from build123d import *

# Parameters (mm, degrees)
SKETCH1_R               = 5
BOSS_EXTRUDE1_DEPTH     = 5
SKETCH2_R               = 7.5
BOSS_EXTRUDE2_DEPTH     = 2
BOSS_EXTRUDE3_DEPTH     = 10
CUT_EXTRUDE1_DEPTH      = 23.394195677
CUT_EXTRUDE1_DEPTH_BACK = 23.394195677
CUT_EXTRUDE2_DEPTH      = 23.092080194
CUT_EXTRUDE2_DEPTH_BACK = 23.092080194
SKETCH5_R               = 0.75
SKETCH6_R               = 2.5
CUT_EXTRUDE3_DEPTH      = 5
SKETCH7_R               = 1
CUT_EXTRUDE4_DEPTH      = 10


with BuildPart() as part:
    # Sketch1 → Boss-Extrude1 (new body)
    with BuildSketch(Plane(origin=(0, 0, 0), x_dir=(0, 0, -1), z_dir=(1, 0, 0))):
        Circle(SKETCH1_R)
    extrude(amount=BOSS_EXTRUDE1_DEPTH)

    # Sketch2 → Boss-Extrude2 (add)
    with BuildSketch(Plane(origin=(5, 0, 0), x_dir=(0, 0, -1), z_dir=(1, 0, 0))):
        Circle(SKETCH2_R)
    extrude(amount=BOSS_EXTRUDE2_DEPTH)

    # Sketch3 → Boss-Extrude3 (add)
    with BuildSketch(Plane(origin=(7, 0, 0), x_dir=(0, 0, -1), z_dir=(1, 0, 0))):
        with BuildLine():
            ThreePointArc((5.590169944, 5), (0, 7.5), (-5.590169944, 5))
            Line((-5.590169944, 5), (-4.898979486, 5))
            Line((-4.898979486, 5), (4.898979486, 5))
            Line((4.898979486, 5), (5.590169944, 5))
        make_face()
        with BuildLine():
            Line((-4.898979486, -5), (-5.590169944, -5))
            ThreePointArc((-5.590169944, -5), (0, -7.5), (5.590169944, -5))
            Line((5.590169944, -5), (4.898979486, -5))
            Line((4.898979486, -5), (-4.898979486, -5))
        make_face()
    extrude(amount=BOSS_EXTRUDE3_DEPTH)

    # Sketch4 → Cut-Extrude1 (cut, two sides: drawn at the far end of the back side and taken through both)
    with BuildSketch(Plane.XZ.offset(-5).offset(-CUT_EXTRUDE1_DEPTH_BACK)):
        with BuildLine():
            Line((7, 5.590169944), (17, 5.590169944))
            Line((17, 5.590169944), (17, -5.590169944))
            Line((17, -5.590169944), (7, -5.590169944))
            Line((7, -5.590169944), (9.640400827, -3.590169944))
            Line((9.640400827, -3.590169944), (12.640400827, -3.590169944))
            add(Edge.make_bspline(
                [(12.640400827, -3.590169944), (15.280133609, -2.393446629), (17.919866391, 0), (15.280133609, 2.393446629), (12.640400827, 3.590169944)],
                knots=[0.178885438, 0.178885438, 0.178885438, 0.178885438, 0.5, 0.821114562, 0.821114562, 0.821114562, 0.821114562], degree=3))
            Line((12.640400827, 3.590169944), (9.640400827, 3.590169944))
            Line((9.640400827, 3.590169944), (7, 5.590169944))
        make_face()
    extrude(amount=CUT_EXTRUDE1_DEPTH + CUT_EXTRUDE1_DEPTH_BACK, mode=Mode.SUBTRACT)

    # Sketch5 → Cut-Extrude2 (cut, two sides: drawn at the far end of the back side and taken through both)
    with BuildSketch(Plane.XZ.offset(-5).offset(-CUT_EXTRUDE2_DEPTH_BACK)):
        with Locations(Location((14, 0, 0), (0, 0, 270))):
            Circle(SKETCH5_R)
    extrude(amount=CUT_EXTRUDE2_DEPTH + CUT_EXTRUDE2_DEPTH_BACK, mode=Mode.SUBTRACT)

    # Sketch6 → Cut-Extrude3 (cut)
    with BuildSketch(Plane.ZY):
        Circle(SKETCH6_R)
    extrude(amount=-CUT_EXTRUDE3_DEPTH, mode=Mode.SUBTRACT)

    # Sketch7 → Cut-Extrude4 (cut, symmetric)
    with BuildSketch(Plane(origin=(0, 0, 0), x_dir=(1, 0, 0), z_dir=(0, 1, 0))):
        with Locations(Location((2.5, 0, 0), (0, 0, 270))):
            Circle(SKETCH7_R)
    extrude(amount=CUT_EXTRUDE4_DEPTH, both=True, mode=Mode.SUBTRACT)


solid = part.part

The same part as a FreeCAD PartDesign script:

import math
import FreeCAD as App
import Part
import Sketcher
Q = App.Units.Quantity

doc = App.newDocument("Part")
body = doc.addObject("PartDesign::Body", "Body")

# Sketch on YZ plane
sketch1 = body.newObject("Sketcher::SketchObject", "Sketch")
sketch1.AttachmentSupport = (doc.getObject("YZ_Plane"), [""])
sketch1.MapMode = "FlatFace"
sketch1.addGeometry(Part.Circle(App.Vector(0, 0, 0), App.Vector(0, 0, 1), 5), False)
sketch1.addConstraint([
    Sketcher.Constraint("Coincident", 0, 3, -1, 1),
    Sketcher.Constraint("Diameter", 0, Q("10 mm")),
])
pad1 = body.newObject("PartDesign::Pad", "Pad")
pad1.Profile = sketch1
pad1.Length = 5

# Sketch on YZ plane
sketch2 = body.newObject("Sketcher::SketchObject", "Sketch001")
sketch2.AttachmentSupport = (doc.getObject("YZ_Plane"), [""])
sketch2.MapMode = "FlatFace"
sketch2.AttachmentOffset = App.Placement(App.Vector(0, 0, 5), App.Rotation())
sketch2.addGeometry(Part.Circle(App.Vector(0, 0, 0), App.Vector(0, 0, 1), 7.5), False)
sketch2.addConstraint([
    Sketcher.Constraint("Coincident", 0, 3, -1, 1),
    Sketcher.Constraint("Diameter", 0, Q("15 mm")),
])
pad2 = body.newObject("PartDesign::Pad", "Pad001")
pad2.Profile = sketch2
pad2.Length = 2

# Sketch on YZ plane
sketch3 = body.newObject("Sketcher::SketchObject", "Sketch002")
sketch3.AttachmentSupport = (doc.getObject("YZ_Plane"), [""])
sketch3.MapMode = "FlatFace"
sketch3.AttachmentOffset = App.Placement(App.Vector(0, 0, 7), App.Rotation())
sketch3.addGeometry([
    Part.ArcOfCircle(Part.Circle(App.Vector(0, 0, 0), App.Vector(0, 0, 1), 7.5), math.radians(-48.189685), math.radians(48.189685)),
    Part.LineSegment(App.Vector(5, 5.59017, 0), App.Vector(5, -5.59017, 0)),
    Part.ArcOfCircle(Part.Circle(App.Vector(0, 0, 0), App.Vector(0, 0, 1), 7.5), math.radians(131.810315), math.radians(228.189685)),
    Part.LineSegment(App.Vector(-5, -5.59017, 0), App.Vector(-5, 5.59017, 0)),
], False)
sketch3.addConstraint([
    Sketcher.Constraint("Coincident", 0, 1, 1, 2),
    Sketcher.Constraint("Coincident", 1, 1, 0, 2),
    Sketcher.Constraint("Coincident", 2, 1, 3, 2),
    Sketcher.Constraint("Coincident", 3, 1, 2, 2),
    Sketcher.Constraint("Vertical", 1),
    Sketcher.Constraint("Vertical", 3),
    Sketcher.Constraint("Coincident", 0, 3, -1, 1),
    Sketcher.Constraint("Coincident", 2, 3, -1, 1),
    Sketcher.Constraint("Equal", 0, 2),
    Sketcher.Constraint("Horizontal", 1, 1, 2, 1),
    Sketcher.Constraint("Radius", 0, Q("7.5 mm")),
    Sketcher.Constraint("DistanceX", -1, 1, 0, 1, Q("5 mm")),
])
pad3 = body.newObject("PartDesign::Pad", "Pad002")
pad3.Profile = sketch3
pad3.Length = 10

# Sketch on XZ plane
sketch4 = body.newObject("Sketcher::SketchObject", "Sketch003")
sketch4.AttachmentSupport = (doc.getObject("XZ_Plane"), [""])
sketch4.MapMode = "FlatFace"
sketch4.AttachmentOffset = App.Placement(App.Vector(0, 0, -5), App.Rotation())
sketch4.addGeometry([
    Part.LineSegment(App.Vector(17, 5.59017, 0), App.Vector(7, 5.59017, 0)),  # 0
    Part.LineSegment(App.Vector(7, 5.59017, 0), App.Vector(9.640401, 3.59017, 0)),  # 1
    Part.LineSegment(App.Vector(9.640401, 3.59017, 0), App.Vector(12.640401, 3.59017, 0)),  # 2
    Part.BSplineCurve([App.Vector(12.640401, -3.59017, 0), App.Vector(15.280134, -2.393447, 0), App.Vector(17.919866, 0, 0), App.Vector(15.280134, 2.393447, 0), App.Vector(12.640401, 3.59017, 0)], [4, 1, 4], [0.178885438, 0.5, 0.821114562], False, 3, [1, 1, 1, 1, 1], False),  # 3
    Part.LineSegment(App.Vector(12.640401, -3.59017, 0), App.Vector(9.640401, -3.59017, 0)),  # 4
    Part.LineSegment(App.Vector(9.640401, -3.59017, 0), App.Vector(7, -5.59017, 0)),  # 5
    Part.LineSegment(App.Vector(7, -5.59017, 0), App.Vector(17, -5.59017, 0)),  # 6
    Part.LineSegment(App.Vector(17, -5.59017, 0), App.Vector(17, 5.59017, 0)),  # 7
], False)
sketch4.addConstraint([
    Sketcher.Constraint("Block", 3),
    Sketcher.Constraint("Coincident", 0, 2, 1, 1),
    Sketcher.Constraint("Coincident", 1, 2, 2, 1),
    Sketcher.Constraint("Coincident", 2, 2, 3, 2),
    Sketcher.Constraint("Coincident", 3, 1, 4, 1),
    Sketcher.Constraint("Coincident", 4, 2, 5, 1),
    Sketcher.Constraint("Coincident", 5, 2, 6, 1),
    Sketcher.Constraint("Coincident", 6, 2, 7, 1),
    Sketcher.Constraint("Coincident", 7, 2, 0, 1),
    Sketcher.Constraint("Horizontal", 0),
    Sketcher.Constraint("Horizontal", 2),
    Sketcher.Constraint("Horizontal", 4),
    Sketcher.Constraint("Horizontal", 6),
    Sketcher.Constraint("Vertical", 7),
    Sketcher.Constraint("Symmetric", 0, 2, 5, 2, -1),
    Sketcher.Constraint("Vertical", 1, 2, 4, 2),
    Sketcher.Constraint("DistanceX", 0, 2, 0, 1, Q("10 mm")),
    Sketcher.Constraint("DistanceX", 2, 1, 2, 2, Q("3 mm")),
    Sketcher.Constraint("DistanceX", -1, 1, 0, 2, Q("7 mm")),
    Sketcher.Constraint("DistanceY", 1, 2, 0, 2, Q("2 mm")),
])
pocket1 = body.newObject("PartDesign::Pocket", "Pocket")
pocket1.Profile = sketch4
pocket1.Type = "ThroughAll"
pocket1.Midplane = True

# Sketch on XZ plane
sketch5 = body.newObject("Sketcher::SketchObject", "Sketch004")
sketch5.AttachmentSupport = (doc.getObject("XZ_Plane"), [""])
sketch5.MapMode = "FlatFace"
sketch5.AttachmentOffset = App.Placement(App.Vector(0, 0, -5), App.Rotation())
sketch5.addGeometry(Part.Circle(App.Vector(14, 0, 0), App.Vector(0, 0, 1), 0.75), False)
sketch5.addConstraint([
    Sketcher.Constraint("PointOnObject", 0, 3, -1),
    Sketcher.Constraint("Diameter", 0, Q("1.5 mm")),
    Sketcher.Constraint("DistanceX", -1, 1, 0, 3, Q("14 mm")),
])
pocket2 = body.newObject("PartDesign::Pocket", "Pocket001")
pocket2.Profile = sketch5
pocket2.Type = "ThroughAll"
pocket2.Midplane = True

# Sketch on YZ plane
sketch6 = body.newObject("Sketcher::SketchObject", "Sketch005")
sketch6.AttachmentSupport = (doc.getObject("YZ_Plane"), [""])
sketch6.MapMode = "FlatFace"
sketch6.addGeometry(Part.Circle(App.Vector(0, 0, 0), App.Vector(0, 0, 1), 2.5), False)
sketch6.addConstraint([
    Sketcher.Constraint("Coincident", 0, 3, -1, 1),
    Sketcher.Constraint("Diameter", 0, Q("5 mm")),
])
pocket3 = body.newObject("PartDesign::Pocket", "Pocket002")
pocket3.Profile = sketch6
pocket3.Length = 5
pocket3.Reversed = True

# Sketch on XZ plane
sketch7 = body.newObject("Sketcher::SketchObject", "Sketch006")
sketch7.AttachmentSupport = (doc.getObject("XZ_Plane"), [""])
sketch7.MapMode = "FlatFace"
sketch7.addGeometry(Part.Circle(App.Vector(2.5, 0, 0), App.Vector(0, 0, 1), 1), False)
sketch7.addConstraint([
    Sketcher.Constraint("PointOnObject", 0, 3, -1),
    Sketcher.Constraint("Diameter", 0, Q("2 mm")),
    Sketcher.Constraint("DistanceX", -1, 1, 0, 3, Q("2.5 mm")),
])
pocket4 = body.newObject("PartDesign::Pocket", "Pocket003")
pocket4.Profile = sketch7
pocket4.Length = 20
pocket4.Midplane = True

doc.recompute()
